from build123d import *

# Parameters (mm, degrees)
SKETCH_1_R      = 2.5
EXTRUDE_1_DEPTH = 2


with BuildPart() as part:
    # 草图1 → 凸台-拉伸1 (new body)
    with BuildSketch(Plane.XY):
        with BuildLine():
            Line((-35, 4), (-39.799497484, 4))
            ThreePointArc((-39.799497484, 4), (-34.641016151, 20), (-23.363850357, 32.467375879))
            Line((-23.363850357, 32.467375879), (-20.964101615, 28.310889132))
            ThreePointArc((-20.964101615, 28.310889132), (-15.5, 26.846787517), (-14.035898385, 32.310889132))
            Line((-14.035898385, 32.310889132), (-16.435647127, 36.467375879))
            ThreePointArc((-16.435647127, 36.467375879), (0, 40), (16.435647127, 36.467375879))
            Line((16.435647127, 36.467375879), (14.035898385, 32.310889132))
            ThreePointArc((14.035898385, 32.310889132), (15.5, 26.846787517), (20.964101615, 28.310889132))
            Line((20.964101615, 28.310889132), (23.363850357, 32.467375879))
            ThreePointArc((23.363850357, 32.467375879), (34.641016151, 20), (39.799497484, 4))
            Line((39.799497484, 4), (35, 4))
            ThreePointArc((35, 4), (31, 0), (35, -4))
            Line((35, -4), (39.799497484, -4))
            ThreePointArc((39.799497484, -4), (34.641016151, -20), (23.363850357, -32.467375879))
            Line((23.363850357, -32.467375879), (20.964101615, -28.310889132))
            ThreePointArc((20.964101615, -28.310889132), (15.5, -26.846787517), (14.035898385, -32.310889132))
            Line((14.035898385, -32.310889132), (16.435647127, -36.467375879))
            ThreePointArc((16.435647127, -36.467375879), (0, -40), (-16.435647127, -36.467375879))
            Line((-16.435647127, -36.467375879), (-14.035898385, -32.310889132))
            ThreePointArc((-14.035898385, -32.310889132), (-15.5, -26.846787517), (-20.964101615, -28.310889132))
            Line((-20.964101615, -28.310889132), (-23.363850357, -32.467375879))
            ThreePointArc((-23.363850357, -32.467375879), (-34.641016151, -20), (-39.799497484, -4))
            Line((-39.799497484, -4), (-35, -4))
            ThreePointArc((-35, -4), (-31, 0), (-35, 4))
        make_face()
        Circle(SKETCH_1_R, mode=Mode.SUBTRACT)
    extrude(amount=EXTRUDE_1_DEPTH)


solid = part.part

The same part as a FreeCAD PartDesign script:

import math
import FreeCAD as App
import Part
import Sketcher
Q = App.Units.Quantity

doc = App.newDocument("Part")
body = doc.addObject("PartDesign::Body", "Body")

# Sketch on XY plane
sketch1 = body.newObject("Sketcher::SketchObject", "Sketch")
sketch1.AttachmentSupport = (doc.getObject("XY_Plane"), [""])
sketch1.MapMode = "FlatFace"
sketch1.addGeometry([
    Part.LineSegment(App.Vector(-39.8, 4, 0), App.Vector(-35, 4, 0)),  # 0
    Part.ArcOfCircle(Part.Circle(App.Vector(-35, 0, 0), App.Vector(0, 0, 1), 4), math.radians(-90), math.radians(90)),  # 1
    Part.LineSegment(App.Vector(-35, -4, 0), App.Vector(-39.8, -4, 0)),  # 2
    Part.ArcOfCircle(Part.Circle(App.Vector(0, 0, 0), App.Vector(0, 0, 1), 40), math.radians(-174), math.radians(-126)),  # 3
    Part.LineSegment(App.Vector(-23.4, -32.5, 0), App.Vector(-21, -28.3, 0)),  # 4
    Part.ArcOfCircle(Part.Circle(App.Vector(-17.5, -30.3, 0), App.Vector(0, 0, 1), 4), math.radians(-30), math.radians(150)),  # 5
    Part.LineSegment(App.Vector(-14, -32.3, 0), App.Vector(-16.4, -36.5, 0)),  # 6
    Part.ArcOfCircle(Part.Circle(App.Vector(0, 0, 0), App.Vector(0, 0, 1), 40), math.radians(-114), math.radians(-66)),  # 7
    Part.LineSegment(App.Vector(16.4, -36.5, 0), App.Vector(14, -32.3, 0)),  # 8
    Part.ArcOfCircle(Part.Circle(App.Vector(17.5, -30.3, 0), App.Vector(0, 0, 1), 4), math.radians(30), math.radians(210)),  # 9
    Part.LineSegment(App.Vector(21, -28.3, 0), App.Vector(23.4, -32.5, 0)),  # 10
    Part.ArcOfCircle(Part.Circle(App.Vector(0, 0, 0), App.Vector(0, 0, 1), 40), math.radians(-54), math.radians(-6)),  # 11
    Part.LineSegment(App.Vector(39.8, -4, 0), App.Vector(35, -4, 0)),  # 12
    Part.ArcOfCircle(Part.Circle(App.Vector(35, 0, 0), App.Vector(0, 0, 1), 4), math.radians(90), math.radians(270)),  # 13
    Part.LineSegment(App.Vector(35, 4, 0), App.Vector(39.8, 4, 0)),  # 14
    Part.ArcOfCircle(Part.Circle(App.Vector(0, 0, 0), App.Vector(0, 0, 1), 40), math.radians(6), math.radians(54)),  # 15
    Part.LineSegment(App.Vector(23.4, 32.5, 0), App.Vector(21, 28.3, 0)),  # 16
    Part.ArcOfCircle(Part.Circle(App.Vector(17.5, 30.3, 0), App.Vector(0, 0, 1), 4), math.radians(150), math.radians(330)),  # 17
    Part.LineSegment(App.Vector(14, 32.3, 0), App.Vector(16.4, 36.5, 0)),  # 18
    Part.ArcOfCircle(Part.Circle(App.Vector(0, 0, 0), App.Vector(0, 0, 1), 40), math.radians(66), math.radians(114)),  # 19
    Part.LineSegment(App.Vector(-16.4, 36.5, 0), App.Vector(-14, 32.3, 0)),  # 20
    Part.ArcOfCircle(Part.Circle(App.Vector(-17.5, 30.3, 0), App.Vector(0, 0, 1), 4), math.radians(-150), math.radians(30)),  # 21
    Part.LineSegment(App.Vector(-21, 28.3, 0), App.Vector(-23.4, 32.5, 0)),  # 22
    Part.ArcOfCircle(Part.Circle(App.Vector(0, 0, 0), App.Vector(0, 0, 1), 40), math.radians(126), math.radians(174)),  # 23
    Part.Circle(App.Vector(0, 0, 0), App.Vector(0, 0, 1), 2.5),  # 24
], False)
sketch1.addConstraint([
    Sketcher.Constraint("Tangent", 0, 2, 1, 2),
    Sketcher.Constraint("Tangent", 1, 1, 2, 1),
    Sketcher.Constraint("Coincident", 2, 2, 3, 1),
    Sketcher.Constraint("Coincident", 3, 2, 4, 1),
    Sketcher.Constraint("Tangent", 4, 2, 5, 2),
    Sketcher.Constraint("Tangent", 5, 1, 6, 1),
    Sketcher.Constraint("Coincident", 6, 2, 7, 1),
    Sketcher.Constraint("Coincident", 7, 2, 8, 1),
    Sketcher.Constraint("Tangent", 8, 2, 9, 2),
    Sketcher.Constraint("Tangent", 9, 1, 10, 1),
    Sketcher.Constraint("Coincident", 10, 2, 11, 1),
    Sketcher.Constraint("Coincident", 11, 2, 12, 1),
    Sketcher.Constraint("Tangent", 12, 2, 13, 2),
    Sketcher.Constraint("Tangent", 13, 1, 14, 1),
    Sketcher.Constraint("Coincident", 14, 2, 15, 1),
    Sketcher.Constraint("Coincident", 15, 2, 16, 1),
    Sketcher.Constraint("Tangent", 16, 2, 17, 2),
    Sketcher.Constraint("Tangent", 17, 1, 18, 1),
    Sketcher.Constraint("Coincident", 18, 2, 19, 1),
    Sketcher.Constraint("Coincident", 19, 2, 20, 1),
    Sketcher.Constraint("Tangent", 20, 2, 21, 2),
    Sketcher.Constraint("Tangent", 21, 1, 22, 1),
    Sketcher.Constraint("Coincident", 22, 2, 23, 1),
    Sketcher.Constraint("Coincident", 23, 2, 0, 1),
    Sketcher.Constraint("Horizontal", 0),
    Sketcher.Constraint("Horizontal", 2),
    Sketcher.Constraint("Horizontal", 12),
    Sketcher.Constraint("Horizontal", 14),
    Sketcher.Constraint("Coincident", 3, 3, -1, 1),
    Sketcher.Constraint("Coincident", 7, 3, -1, 1),
    Sketcher.Constraint("Coincident", 11, 3, -1, 1),
    Sketcher.Constraint("Coincident", 15, 3, -1, 1),
    Sketcher.Constraint("Coincident", 19, 3, -1, 1),
    Sketcher.Constraint("Coincident", 23, 3, -1, 1),
    Sketcher.Constraint("Coincident", 24, 3, -1, 1),
    Sketcher.Constraint("Equal", 1, 5),
    Sketcher.Constraint("Equal", 3, 7),
    Sketcher.Constraint("Equal", 5, 9),
    Sketcher.Constraint("Equal", 7, 11),
    Sketcher.Constraint("Equal", 9, 13),
    Sketcher.Constraint("Equal", 11, 15),
    Sketcher.Constraint("Equal", 13, 17),
    Sketcher.Constraint("Equal", 15, 19),
    Sketcher.Constraint("Equal", 17, 21),
    Sketcher.Constraint("Equal", 19, 23),
    Sketcher.Constraint("Symmetric", 1, 3, 13, 3, -1, 1),
    Sketcher.Constraint("Symmetric", 5, 3, 17, 3, -1, 1),
    Sketcher.Constraint("Symmetric", 9, 3, 21, 3, -1, 1),
    Sketcher.Constraint("Symmetric", 5, 3, 9, 3, -2),
    Sketcher.Constraint("PointOnObject", 1, 3, -1),
    Sketcher.Constraint("Parallel", 4, 6),
    Sketcher.Constraint("Parallel", 8, 10),
    Sketcher.Constraint("Parallel", 6, 16),
    Sketcher.Constraint("Parallel", 16, 18),
    Sketcher.Constraint("Parallel", 10, 20),
    Sketcher.Constraint("Parallel", 20, 22),
    Sketcher.Constraint("Horizontal", 6, 2, 7, 2),
    Sketcher.Constraint("Equal", 4, 6),
    Sketcher.Constraint("Diameter", 24, Q("5 mm")),
    Sketcher.Constraint("Radius", 1, Q("4 mm")),
    Sketcher.Constraint("Radius", 3, Q("40 mm")),
    Sketcher.Constraint("Angle", 4, Q("60 deg")),
    Sketcher.Constraint("DistanceX", 1, 3, -1, 1, Q("35 mm")),
    Sketcher.Constraint("DistanceX", 5, 3, 9, 3, Q("35 mm")),
])
pad1 = body.newObject("PartDesign::Pad", "Pad")
pad1.Profile = sketch1
pad1.Length = 2

doc.recompute()
